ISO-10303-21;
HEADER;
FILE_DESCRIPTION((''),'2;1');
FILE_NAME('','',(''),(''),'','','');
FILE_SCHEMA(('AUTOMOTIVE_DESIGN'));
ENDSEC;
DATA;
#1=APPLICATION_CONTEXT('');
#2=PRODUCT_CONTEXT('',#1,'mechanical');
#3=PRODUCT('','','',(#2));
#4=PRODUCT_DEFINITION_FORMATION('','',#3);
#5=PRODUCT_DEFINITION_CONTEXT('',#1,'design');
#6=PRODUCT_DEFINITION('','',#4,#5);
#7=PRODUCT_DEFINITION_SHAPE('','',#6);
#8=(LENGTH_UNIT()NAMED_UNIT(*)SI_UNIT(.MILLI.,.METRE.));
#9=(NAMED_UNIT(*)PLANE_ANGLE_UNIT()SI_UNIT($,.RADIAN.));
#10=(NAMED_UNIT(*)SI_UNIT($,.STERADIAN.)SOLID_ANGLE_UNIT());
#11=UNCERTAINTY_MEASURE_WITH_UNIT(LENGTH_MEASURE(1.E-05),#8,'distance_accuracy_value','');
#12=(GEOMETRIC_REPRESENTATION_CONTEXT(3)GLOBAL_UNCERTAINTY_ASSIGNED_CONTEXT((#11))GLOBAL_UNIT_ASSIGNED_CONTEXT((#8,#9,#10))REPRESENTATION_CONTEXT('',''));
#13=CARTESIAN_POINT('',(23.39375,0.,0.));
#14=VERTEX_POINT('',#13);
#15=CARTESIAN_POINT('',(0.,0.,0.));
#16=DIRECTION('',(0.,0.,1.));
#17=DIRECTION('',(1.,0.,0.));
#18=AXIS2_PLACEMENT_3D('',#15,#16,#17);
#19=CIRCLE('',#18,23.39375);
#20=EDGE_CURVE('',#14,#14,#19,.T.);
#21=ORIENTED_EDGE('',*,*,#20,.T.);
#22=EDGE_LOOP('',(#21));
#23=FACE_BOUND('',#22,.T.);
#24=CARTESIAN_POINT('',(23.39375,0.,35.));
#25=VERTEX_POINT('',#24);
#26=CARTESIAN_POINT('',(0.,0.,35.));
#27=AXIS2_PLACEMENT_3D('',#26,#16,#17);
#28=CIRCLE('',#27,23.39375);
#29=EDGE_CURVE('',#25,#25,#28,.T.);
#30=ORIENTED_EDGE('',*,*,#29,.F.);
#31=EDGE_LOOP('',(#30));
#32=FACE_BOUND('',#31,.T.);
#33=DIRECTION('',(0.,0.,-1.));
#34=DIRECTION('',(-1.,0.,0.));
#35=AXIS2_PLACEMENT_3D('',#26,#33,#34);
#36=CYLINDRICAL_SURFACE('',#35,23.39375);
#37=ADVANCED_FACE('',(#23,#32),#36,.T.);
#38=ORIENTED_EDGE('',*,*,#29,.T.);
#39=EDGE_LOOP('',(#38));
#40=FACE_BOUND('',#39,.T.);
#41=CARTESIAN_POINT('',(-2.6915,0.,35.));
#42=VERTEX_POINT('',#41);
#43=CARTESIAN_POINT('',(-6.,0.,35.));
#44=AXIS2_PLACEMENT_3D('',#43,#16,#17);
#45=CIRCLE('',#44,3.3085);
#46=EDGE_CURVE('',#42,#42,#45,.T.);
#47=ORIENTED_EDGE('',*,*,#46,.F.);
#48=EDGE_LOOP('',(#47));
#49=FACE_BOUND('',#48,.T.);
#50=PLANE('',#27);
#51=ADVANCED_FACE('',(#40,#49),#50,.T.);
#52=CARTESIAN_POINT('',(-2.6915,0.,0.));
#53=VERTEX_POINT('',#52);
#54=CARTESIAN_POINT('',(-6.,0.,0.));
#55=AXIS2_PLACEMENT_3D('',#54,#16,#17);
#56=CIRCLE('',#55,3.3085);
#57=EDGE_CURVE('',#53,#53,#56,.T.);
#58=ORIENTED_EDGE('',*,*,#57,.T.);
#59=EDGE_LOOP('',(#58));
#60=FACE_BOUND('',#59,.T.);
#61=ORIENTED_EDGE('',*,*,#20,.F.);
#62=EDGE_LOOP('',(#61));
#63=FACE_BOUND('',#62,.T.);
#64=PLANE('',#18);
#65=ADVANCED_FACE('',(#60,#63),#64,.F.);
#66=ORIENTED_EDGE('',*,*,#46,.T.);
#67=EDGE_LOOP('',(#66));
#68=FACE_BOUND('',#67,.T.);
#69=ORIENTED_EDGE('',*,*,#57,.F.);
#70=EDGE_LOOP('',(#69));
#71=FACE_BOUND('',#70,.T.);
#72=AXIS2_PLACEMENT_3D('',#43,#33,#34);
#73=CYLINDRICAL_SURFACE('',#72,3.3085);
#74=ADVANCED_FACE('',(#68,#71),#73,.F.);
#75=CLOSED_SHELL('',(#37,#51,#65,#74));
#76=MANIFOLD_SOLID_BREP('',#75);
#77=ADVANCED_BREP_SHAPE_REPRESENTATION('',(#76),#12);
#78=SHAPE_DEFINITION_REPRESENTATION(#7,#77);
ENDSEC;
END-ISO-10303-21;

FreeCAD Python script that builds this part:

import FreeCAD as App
import Part
import Sketcher

V = App.Vector

doc = App.newDocument("Part")
body = doc.addObject("PartDesign::Body", "Body")

sketch1 = body.newObject("Sketcher::SketchObject", "Sketch")
sketch1.AttachmentSupport = (doc.getObject("XY_Plane"), [""])
sketch1.MapMode = "FlatFace"
sketch1.addGeometry(Part.Circle(V(0, 0, 0), V(0, 0, 1), 23.4), False)
sketch1.addGeometry(Part.Circle(V(-6, 0, 0), V(0, 0, 1), 3.3), False)
sketch1.addConstraint(Sketcher.Constraint("Coincident", 0, 3, -1, 1))
sketch1.addConstraint(Sketcher.Constraint("PointOnObject", 1, 3, -1))
sketch1.addConstraint(Sketcher.Constraint("Diameter", 1, 6.617))
sketch1.addConstraint(Sketcher.Constraint("DistanceX", 1, 3, -1, 1, 6.0))
sketch1.addConstraint(Sketcher.Constraint("Diameter", 0, 46.7875))
pad1 = body.newObject("PartDesign::Pad", "Pad")
pad1.Profile = sketch1
pad1.Length = 35

doc.recompute()
